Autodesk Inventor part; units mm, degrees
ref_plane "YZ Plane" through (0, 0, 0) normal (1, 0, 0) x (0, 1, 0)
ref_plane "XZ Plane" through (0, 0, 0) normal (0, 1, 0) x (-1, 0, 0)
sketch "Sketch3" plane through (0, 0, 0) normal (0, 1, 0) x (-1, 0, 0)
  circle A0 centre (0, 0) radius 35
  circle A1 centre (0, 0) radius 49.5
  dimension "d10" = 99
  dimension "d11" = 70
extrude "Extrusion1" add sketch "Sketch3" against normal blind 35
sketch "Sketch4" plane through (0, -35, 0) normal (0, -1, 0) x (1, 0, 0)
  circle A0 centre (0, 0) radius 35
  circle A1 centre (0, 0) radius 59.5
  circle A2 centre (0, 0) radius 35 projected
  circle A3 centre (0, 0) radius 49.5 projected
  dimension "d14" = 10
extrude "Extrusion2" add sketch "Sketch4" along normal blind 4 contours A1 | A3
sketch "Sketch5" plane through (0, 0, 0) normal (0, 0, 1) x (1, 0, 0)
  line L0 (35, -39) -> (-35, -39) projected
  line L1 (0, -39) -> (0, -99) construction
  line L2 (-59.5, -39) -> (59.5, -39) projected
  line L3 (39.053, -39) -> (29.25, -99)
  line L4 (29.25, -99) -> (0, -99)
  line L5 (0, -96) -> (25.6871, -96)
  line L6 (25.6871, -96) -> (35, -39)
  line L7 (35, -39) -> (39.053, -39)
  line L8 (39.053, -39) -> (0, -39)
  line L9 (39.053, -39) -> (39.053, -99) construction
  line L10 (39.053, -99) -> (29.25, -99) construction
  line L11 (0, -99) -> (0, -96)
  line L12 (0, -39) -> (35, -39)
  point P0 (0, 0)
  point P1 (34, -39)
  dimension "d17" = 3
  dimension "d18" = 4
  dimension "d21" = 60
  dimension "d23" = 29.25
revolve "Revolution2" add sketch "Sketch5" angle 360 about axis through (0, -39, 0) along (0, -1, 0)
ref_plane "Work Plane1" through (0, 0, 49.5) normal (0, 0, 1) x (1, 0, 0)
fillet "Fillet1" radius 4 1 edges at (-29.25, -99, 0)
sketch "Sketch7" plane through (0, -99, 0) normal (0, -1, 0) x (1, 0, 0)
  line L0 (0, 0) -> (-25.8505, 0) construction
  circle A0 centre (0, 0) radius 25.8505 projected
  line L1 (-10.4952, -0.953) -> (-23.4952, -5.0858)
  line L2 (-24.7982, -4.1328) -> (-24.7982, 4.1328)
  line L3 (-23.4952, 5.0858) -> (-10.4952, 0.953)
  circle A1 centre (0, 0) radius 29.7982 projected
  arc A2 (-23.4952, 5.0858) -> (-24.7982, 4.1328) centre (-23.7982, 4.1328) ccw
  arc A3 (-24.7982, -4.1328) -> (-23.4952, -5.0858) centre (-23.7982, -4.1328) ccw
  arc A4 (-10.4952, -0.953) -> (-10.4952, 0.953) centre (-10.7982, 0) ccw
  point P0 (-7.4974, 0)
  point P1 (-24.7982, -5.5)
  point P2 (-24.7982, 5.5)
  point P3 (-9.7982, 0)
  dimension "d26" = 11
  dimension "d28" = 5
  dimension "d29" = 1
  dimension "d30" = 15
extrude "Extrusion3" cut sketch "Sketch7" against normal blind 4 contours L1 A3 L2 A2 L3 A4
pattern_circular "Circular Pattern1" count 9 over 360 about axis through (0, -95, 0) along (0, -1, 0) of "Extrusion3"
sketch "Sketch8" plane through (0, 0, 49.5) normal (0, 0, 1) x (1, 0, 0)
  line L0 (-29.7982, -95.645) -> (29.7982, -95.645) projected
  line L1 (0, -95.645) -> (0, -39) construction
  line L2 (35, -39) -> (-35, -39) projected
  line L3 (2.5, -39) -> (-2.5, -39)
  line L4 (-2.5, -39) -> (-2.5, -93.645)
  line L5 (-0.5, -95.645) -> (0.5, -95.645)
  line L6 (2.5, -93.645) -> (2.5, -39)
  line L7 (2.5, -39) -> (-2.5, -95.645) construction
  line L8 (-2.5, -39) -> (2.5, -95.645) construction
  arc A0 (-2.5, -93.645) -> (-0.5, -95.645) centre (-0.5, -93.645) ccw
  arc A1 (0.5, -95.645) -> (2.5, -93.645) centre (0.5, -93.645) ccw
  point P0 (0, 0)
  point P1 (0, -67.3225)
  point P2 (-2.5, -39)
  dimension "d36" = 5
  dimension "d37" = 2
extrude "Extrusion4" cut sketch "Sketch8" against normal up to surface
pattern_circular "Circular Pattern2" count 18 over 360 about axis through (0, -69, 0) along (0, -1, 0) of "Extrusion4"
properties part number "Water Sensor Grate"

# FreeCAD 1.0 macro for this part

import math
import FreeCAD as App
import Part
import Sketcher
from FreeCAD import Vector
Q = App.Units.Quantity


def edges_at(feature, points):
    """Names of the edges that pass closest to the given points."""
    edges = feature.Shape.Edges
    near = lambda p: min(range(len(edges)), key=lambda i: edges[i].distToShape(Part.Vertex(*p))[0])
    return sorted({f"Edge{near(p) + 1}" for p in points})

doc = App.newDocument("Part")
body = doc.addObject("PartDesign::Body", "Body")

# Sketch on XZ plane
sketch1 = body.newObject("Sketcher::SketchObject", "Sketch")
sketch1.AttachmentSupport = (doc.getObject("XZ_Plane"), [""])
sketch1.MapMode = "FlatFace"
sketch1.addGeometry([
    Part.Circle(Vector(0, 0, 0), Vector(0, 0, 1), 50),
    Part.Circle(Vector(0, 0, 0), Vector(0, 0, 1), 35),
], False)
sketch1.addConstraint([
    Sketcher.Constraint("Coincident", 0, 3, -1, 1),
    Sketcher.Constraint("Coincident", 1, 3, -1, 1),
    Sketcher.Constraint("Diameter", 0, Q("99 mm")),
    Sketcher.Constraint("Diameter", 1, Q("70 mm")),
])
pad1 = body.newObject("PartDesign::Pad", "Pad")
pad1.Profile = sketch1
pad1.Length = 35

# Sketch on XZ plane
sketch2 = body.newObject("Sketcher::SketchObject", "Sketch001")
sketch2.AttachmentSupport = (doc.getObject("XZ_Plane"), [""])
sketch2.MapMode = "FlatFace"
sketch2.AttachmentOffset = App.Placement(Vector(0, 0, 35), App.Rotation())
sketch2.addGeometry([
    Part.Circle(Vector(0, 0, 0), Vector(0, 0, 1), 60),
    Part.Circle(Vector(0, 0, 0), Vector(0, 0, 1), 35),
], False)
sketch2.addConstraint([
    Sketcher.Constraint("Coincident", 0, 3, -1, 1),
    Sketcher.Constraint("Coincident", 1, 3, -1, 1),
    Sketcher.Constraint("Diameter", 0, Q("119 mm")),
    Sketcher.Constraint("Diameter", 1, Q("70 mm")),
])
pad2 = body.newObject("PartDesign::Pad", "Pad001")
pad2.Profile = sketch2
pad2.Length = 4

# Sketch on XY plane
sketch3 = body.newObject("Sketcher::SketchObject", "Sketch002")
sketch3.AttachmentSupport = (doc.getObject("XY_Plane"), [""])
sketch3.MapMode = "FlatFace"
sketch3.addGeometry([
    Part.LineSegment(Vector(39.1, -39, 0), Vector(35, -39, 0)),  # 0
    Part.LineSegment(Vector(35, -39, 0), Vector(25.7, -96, 0)),  # 1
    Part.LineSegment(Vector(25.7, -96, 0), Vector(0, -96, 0)),  # 2
    Part.LineSegment(Vector(0, -96, 0), Vector(0, -99, 0)),  # 3
    Part.LineSegment(Vector(0, -99, 0), Vector(29.2, -99, 0)),  # 4
    Part.LineSegment(Vector(29.2, -99, 0), Vector(39.1, -39, 0)),  # 5
], False)
sketch3.addConstraint([
    Sketcher.Constraint("Coincident", 0, 2, 1, 1),
    Sketcher.Constraint("Coincident", 1, 2, 2, 1),
    Sketcher.Constraint("Coincident", 2, 2, 3, 1),
    Sketcher.Constraint("Coincident", 3, 2, 4, 1),
    Sketcher.Constraint("Coincident", 4, 2, 5, 1),
    Sketcher.Constraint("Coincident", 5, 2, 0, 1),
    Sketcher.Constraint("Horizontal", 0),
    Sketcher.Constraint("Horizontal", 2),
    Sketcher.Constraint("Vertical", 3),
    Sketcher.Constraint("Horizontal", 4),
    Sketcher.Constraint("PointOnObject", 2, 2, -2),
    Sketcher.Constraint("Parallel", 1, 5),
    Sketcher.Constraint("DistanceY", 3, 2, 3, 1, Q("3 mm")),
    Sketcher.Constraint("DistanceY", 3, 2, 0, 2, Q("60 mm")),
    Sketcher.Constraint("DistanceX", 4, 1, 4, 2, Q("29.25 mm")),
    Sketcher.Constraint("DistanceX", -1, 1, 0, 2, Q("35 mm")),
    Sketcher.Constraint("DistanceY", 0, 2, -1, 1, Q("39 mm")),
    Sketcher.Constraint("Angle", 1, Q("-99.2792 deg")),
])
revolution = body.newObject("PartDesign::Revolution", "Revolution")
revolution.Profile = sketch3
revolution.ReferenceAxis = (sketch3, ["V_Axis"])
revolution.Angle = 360
doc.recompute()

fillet = body.newObject("PartDesign::Fillet", "Fillet")
fillet.Base = (revolution, edges_at(revolution, [(-29.25, -99, 0)]))
fillet.Radius = 4

# Sketch on XZ plane
sketch4 = body.newObject("Sketcher::SketchObject", "Sketch003")
sketch4.AttachmentSupport = (doc.getObject("XZ_Plane"), [""])
sketch4.MapMode = "FlatFace"
sketch4.AttachmentOffset = App.Placement(Vector(0, 0, 99), App.Rotation())
sketch4.addGeometry([
    Part.LineSegment(Vector(-23.5, -5.1, 0), Vector(-10.5, -1, 0)),  # 0
    Part.ArcOfCircle(Part.Circle(Vector(-10.8, 0, 0), Vector(0, 0, 1), 1), math.radians(-72), math.radians(72)),  # 1
    Part.LineSegment(Vector(-10.5, 1, 0), Vector(-23.5, 5.1, 0)),  # 2
    Part.ArcOfCircle(Part.Circle(Vector(-23.8, 4.1, 0), Vector(0, 0, 1), 1), math.radians(72), math.radians(180)),  # 3
    Part.LineSegment(Vector(-24.8, 4.1, 0), Vector(-24.8, -4.1, 0)),  # 4
    Part.ArcOfCircle(Part.Circle(Vector(-23.8, -4.1, 0), Vector(0, 0, 1), 1), math.radians(180), math.radians(288)),  # 5
], False)
sketch4.addConstraint([
    Sketcher.Constraint("Tangent", 0, 2, 1, 1),
    Sketcher.Constraint("Tangent", 1, 2, 2, 1),
    Sketcher.Constraint("Tangent", 2, 2, 3, 1),
    Sketcher.Constraint("Tangent", 3, 2, 4, 1),
    Sketcher.Constraint("Tangent", 4, 2, 5, 1),
    Sketcher.Constraint("Tangent", 5, 2, 0, 1),
    Sketcher.Constraint("Vertical", 4),
    Sketcher.Constraint("Equal", 1, 3),
    Sketcher.Constraint("Equal", 3, 5),
    Sketcher.Constraint("Symmetric", 0, 2, 1, 2, -1),
    Sketcher.Constraint("Radius", 1, Q("1 mm")),
    Sketcher.Constraint("DistanceX", 3, 3, 1, 3, Q("13 mm")),
    Sketcher.Constraint("Distance", 0, Q("13.641 mm")),
    Sketcher.Constraint("DistanceX", 1, 3, -1, 1, Q("10.7982 mm")),
])
pocket1 = body.newObject("PartDesign::Pocket", "Pocket")
pocket1.Profile = sketch4
pocket1.Length = 4
doc.recompute()

polarpattern = body.newObject("PartDesign::PolarPattern", "PolarPattern")
polarpattern.Originals = [pocket1]
polarpattern.Axis = (doc.getObject("Y_Axis"), [""])
polarpattern.Angle = 360
polarpattern.Occurrences = 9
body.Tip = polarpattern

# Sketch on XY plane
sketch5 = body.newObject("Sketcher::SketchObject", "Sketch004")
sketch5.AttachmentSupport = (doc.getObject("XY_Plane"), [""])
sketch5.MapMode = "FlatFace"
sketch5.AttachmentOffset = App.Placement(Vector(0, 0, 49.5), App.Rotation())
sketch5.addGeometry([
    Part.ArcOfCircle(Part.Circle(Vector(-0.5, -93.6, 0), Vector(0, 0, 1), 2), math.radians(180), math.radians(270)),  # 0
    Part.LineSegment(Vector(-0.5, -95.6, 0), Vector(0.5, -95.6, 0)),  # 1
    Part.ArcOfCircle(Part.Circle(Vector(0.5, -93.6, 0), Vector(0, 0, 1), 2), math.radians(-90), math.radians(0)),  # 2
    Part.LineSegment(Vector(2.5, -93.6, 0), Vector(2.5, -39, 0)),  # 3
    Part.LineSegment(Vector(2.5, -39, 0), Vector(-2.5, -39, 0)),  # 4
    Part.LineSegment(Vector(-2.5, -39, 0), Vector(-2.5, -93.6, 0)),  # 5
], False)
sketch5.addConstraint([
    Sketcher.Constraint("Tangent", 0, 2, 1, 1),
    Sketcher.Constraint("Tangent", 1, 2, 2, 1),
    Sketcher.Constraint("Tangent", 2, 2, 3, 1),
    Sketcher.Constraint("Coincident", 3, 2, 4, 1),
    Sketcher.Constraint("Coincident", 4, 2, 5, 1),
    Sketcher.Constraint("Tangent", 5, 2, 0, 1),
    Sketcher.Constraint("Horizontal", 1),
    Sketcher.Constraint("Vertical", 3),
    Sketcher.Constraint("Horizontal", 4),
    Sketcher.Constraint("Vertical", 5),
    Sketcher.Constraint("Equal", 0, 2),
    Sketcher.Constraint("Radius", 0, Q("2 mm")),
    Sketcher.Constraint("DistanceX", 4, 2, 4, 1, Q("5 mm")),
    Sketcher.Constraint("DistanceY", 3, 2, -1, 1, Q("39 mm")),
    Sketcher.Constraint("DistanceX", 0, 3, -1, 1, Q("0.5 mm")),
    Sketcher.Constraint("DistanceY", 3, 1, 3, 2, Q("54.645 mm")),
])
pocket2 = body.newObject("PartDesign::Pocket", "Pocket001")
pocket2.Profile = sketch5
pocket2.Length = 23.7598
doc.recompute()

polarpattern2 = body.newObject("PartDesign::PolarPattern", "PolarPattern001")
polarpattern2.Originals = [pocket2]
polarpattern2.Axis = (doc.getObject("Y_Axis"), [""])
polarpattern2.Angle = 360
polarpattern2.Occurrences = 18
body.Tip = polarpattern2

doc.recompute()
